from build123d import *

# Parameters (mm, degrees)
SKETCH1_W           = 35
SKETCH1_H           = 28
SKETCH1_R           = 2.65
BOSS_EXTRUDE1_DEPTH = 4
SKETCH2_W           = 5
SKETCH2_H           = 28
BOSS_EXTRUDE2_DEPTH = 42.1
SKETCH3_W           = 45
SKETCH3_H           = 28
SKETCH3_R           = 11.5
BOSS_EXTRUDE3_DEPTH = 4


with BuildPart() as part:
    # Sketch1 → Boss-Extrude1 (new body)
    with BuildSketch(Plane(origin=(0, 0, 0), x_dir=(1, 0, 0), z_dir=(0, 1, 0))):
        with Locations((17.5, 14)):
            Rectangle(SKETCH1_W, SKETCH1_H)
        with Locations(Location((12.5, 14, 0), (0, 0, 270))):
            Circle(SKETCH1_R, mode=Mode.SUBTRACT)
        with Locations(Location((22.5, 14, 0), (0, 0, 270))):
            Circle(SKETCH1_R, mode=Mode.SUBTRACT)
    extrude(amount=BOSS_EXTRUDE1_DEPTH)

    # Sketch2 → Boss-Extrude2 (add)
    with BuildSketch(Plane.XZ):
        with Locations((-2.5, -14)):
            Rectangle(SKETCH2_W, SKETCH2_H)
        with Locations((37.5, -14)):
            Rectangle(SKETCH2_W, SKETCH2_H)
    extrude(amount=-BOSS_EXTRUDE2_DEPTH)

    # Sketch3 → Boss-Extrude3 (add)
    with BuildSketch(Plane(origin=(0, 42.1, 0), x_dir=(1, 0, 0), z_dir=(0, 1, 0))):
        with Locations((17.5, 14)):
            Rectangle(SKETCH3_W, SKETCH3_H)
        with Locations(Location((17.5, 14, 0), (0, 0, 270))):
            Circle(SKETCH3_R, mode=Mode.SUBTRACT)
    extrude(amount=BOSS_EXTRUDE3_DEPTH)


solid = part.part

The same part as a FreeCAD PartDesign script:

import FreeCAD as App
import Part
import Sketcher

V = App.Vector

doc = App.newDocument("Part")
params = doc.addObject("Spreadsheet::Sheet", "Params")
for row, (alias, value) in enumerate([
    ("sketch1_diameter", "5.3 mm"),
    ("sketch1_width", "35 mm"),
    ("sketch1_height", "28 mm"),
    ("pad1_length", "4 mm"),
    ("sketch2_width", "5 mm"),
    ("sketch2_height", "28 mm"),
    ("pad2_length", "42.1 mm"),
    ("sketch3_diameter", "23 mm"),
    ("sketch3_width", "45 mm"),
    ("sketch3_height", "28 mm"),
    ("pad3_length", "4 mm"),
], start=1):
    params.set(f"A{row}", alias)
    params.set(f"B{row}", "=" + value)
    params.setAlias(f"B{row}", alias)

body = doc.addObject("PartDesign::Body", "Body")

# Sketch on XZ plane
sketch1 = body.newObject("Sketcher::SketchObject", "Sketch")
sketch1.AttachmentSupport = (doc.getObject("XZ_Plane"), [""])
sketch1.MapMode = "FlatFace"
sketch1.addGeometry([
    Part.LineSegment(V(0, -28, 0), V(0, 0, 0)),  # 0
    Part.LineSegment(V(0, 0, 0), V(35, 0, 0)),  # 1
    Part.LineSegment(V(35, 0, 0), V(35, -28, 0)),  # 2
    Part.LineSegment(V(35, -28, 0), V(0, -28, 0)),  # 3
    Part.Circle(V(12.5, -14, 0), V(0, 0, 1), 2.6),  # 4
    Part.Circle(V(22.5, -14, 0), V(0, 0, 1), 2.6),  # 5
], False)
sketch1.addConstraint([
    Sketcher.Constraint("Coincident", 0, 2, 1, 1),
    Sketcher.Constraint("Coincident", 1, 2, 2, 1),
    Sketcher.Constraint("Coincident", 2, 2, 3, 1),
    Sketcher.Constraint("Coincident", 3, 2, 0, 1),
    Sketcher.Constraint("Vertical", 0),
    Sketcher.Constraint("Horizontal", 1),
    Sketcher.Constraint("Vertical", 2),
    Sketcher.Constraint("Horizontal", 3),
    Sketcher.Constraint("Coincident", 0, 2, -1, 1),
    Sketcher.Constraint("Equal", 4, 5),
    Sketcher.Constraint("Horizontal", 4, 3, 5, 3),
    Sketcher.Constraint("Diameter", 4, 5.3),
    Sketcher.Constraint("DistanceX", 1, 1, 1, 2, 35.0),
    Sketcher.Constraint("DistanceY", 0, 1, 0, 2, 28.0),
    Sketcher.Constraint("DistanceY", 4, 3, -1, 1, 14.0),
    Sketcher.Constraint("DistanceX", 4, 3, 5, 3, 10.0),
    Sketcher.Constraint("DistanceX", -1, 1, 4, 3, 12.5),
])
sketch1.setExpression("Constraints[11]", "Params.sketch1_diameter")
sketch1.setExpression("Constraints[12]", "Params.sketch1_width")
sketch1.setExpression("Constraints[13]", "Params.sketch1_height")
pad1 = body.newObject("PartDesign::Pad", "Pad")
pad1.Profile = sketch1
pad1.setExpression("Length", "Params.pad1_length")
pad1.Reversed = True

# Sketch on XZ plane
sketch2 = body.newObject("Sketcher::SketchObject", "Sketch001")
sketch2.AttachmentSupport = (doc.getObject("XZ_Plane"), [""])
sketch2.MapMode = "FlatFace"
sketch2.addGeometry([
    Part.LineSegment(V(-5, 0, 0), V(-5, -28, 0)),  # 0
    Part.LineSegment(V(-5, -28, 0), V(0, -28, 0)),  # 1
    Part.LineSegment(V(0, -28, 0), V(0, 0, 0)),  # 2
    Part.LineSegment(V(0, 0, 0), V(-5, 0, 0)),  # 3
    Part.LineSegment(V(35, 0, 0), V(35, -28, 0)),  # 4
    Part.LineSegment(V(35, -28, 0), V(40, -28, 0)),  # 5
    Part.LineSegment(V(40, -28, 0), V(40, 0, 0)),  # 6
    Part.LineSegment(V(40, 0, 0), V(35, 0, 0)),  # 7
], False)
sketch2.addConstraint([
    Sketcher.Constraint("Coincident", 0, 2, 1, 1),
    Sketcher.Constraint("Coincident", 1, 2, 2, 1),
    Sketcher.Constraint("Coincident", 2, 2, 3, 1),
    Sketcher.Constraint("Coincident", 3, 2, 0, 1),
    Sketcher.Constraint("Coincident", 4, 2, 5, 1),
    Sketcher.Constraint("Coincident", 5, 2, 6, 1),
    Sketcher.Constraint("Coincident", 6, 2, 7, 1),
    Sketcher.Constraint("Coincident", 7, 2, 4, 1),
    Sketcher.Constraint("Vertical", 0),
    Sketcher.Constraint("Horizontal", 1),
    Sketcher.Constraint("Vertical", 2),
    Sketcher.Constraint("Horizontal", 3),
    Sketcher.Constraint("Vertical", 4),
    Sketcher.Constraint("Horizontal", 5),
    Sketcher.Constraint("Vertical", 6),
    Sketcher.Constraint("Horizontal", 7),
    Sketcher.Constraint("Coincident", 2, 2, -1, 1),
    Sketcher.Constraint("PointOnObject", 6, 2, -1),
    Sketcher.Constraint("Horizontal", 1, 2, 4, 2),
    Sketcher.Constraint("Equal", 3, 5),
    Sketcher.Constraint("DistanceX", 1, 1, 1, 2, 5.0),
    Sketcher.Constraint("DistanceY", 0, 2, 0, 1, 28.0),
    Sketcher.Constraint("DistanceX", -1, 1, 4, 2, 35.0),
])
sketch2.setExpression("Constraints[20]", "Params.sketch2_width")
sketch2.setExpression("Constraints[21]", "Params.sketch2_height")
pad2 = body.newObject("PartDesign::Pad", "Pad001")
pad2.Profile = sketch2
pad2.setExpression("Length", "Params.pad2_length")
pad2.Reversed = True

# Sketch on XZ plane
sketch3 = body.newObject("Sketcher::SketchObject", "Sketch002")
sketch3.AttachmentSupport = (doc.getObject("XZ_Plane"), [""])
sketch3.MapMode = "FlatFace"
sketch3.AttachmentOffset = App.Placement(V(0, 0, -42.1), App.Rotation())
sketch3.addGeometry([
    Part.LineSegment(V(-5, -28, 0), V(-5, 0, 0)),  # 0
    Part.LineSegment(V(-5, 0, 0), V(40, 0, 0)),  # 1
    Part.LineSegment(V(40, 0, 0), V(40, -28, 0)),  # 2
    Part.LineSegment(V(40, -28, 0), V(-5, -28, 0)),  # 3
    Part.Circle(V(18, -14, 0), V(0, 0, 1), 12),  # 4
], False)
sketch3.addConstraint([
    Sketcher.Constraint("Coincident", 0, 2, 1, 1),
    Sketcher.Constraint("Coincident", 1, 2, 2, 1),
    Sketcher.Constraint("Coincident", 2, 2, 3, 1),
    Sketcher.Constraint("Coincident", 3, 2, 0, 1),
    Sketcher.Constraint("Vertical", 0),
    Sketcher.Constraint("Horizontal", 1),
    Sketcher.Constraint("Vertical", 2),
    Sketcher.Constraint("Horizontal", 3),
    Sketcher.Constraint("PointOnObject", 0, 2, -1),
    Sketcher.Constraint("Diameter", 4, 23.0),
    Sketcher.Constraint("DistanceX", 1, 1, 1, 2, 45.0),
    Sketcher.Constraint("DistanceY", 0, 1, 0, 2, 28.0),
    Sketcher.Constraint("DistanceY", 4, 3, -1, 1, 14.0),
    Sketcher.Constraint("DistanceX", 0, 2, -1, 1, 5.0),
    Sketcher.Constraint("DistanceX", -1, 1, 4, 3, 17.5),
])
sketch3.setExpression("Constraints[9]", "Params.sketch3_diameter")
sketch3.setExpression("Constraints[10]", "Params.sketch3_width")
sketch3.setExpression("Constraints[11]", "Params.sketch3_height")
pad3 = body.newObject("PartDesign::Pad", "Pad002")
pad3.Profile = sketch3
pad3.setExpression("Length", "Params.pad3_length")
pad3.Reversed = True

doc.recompute()
